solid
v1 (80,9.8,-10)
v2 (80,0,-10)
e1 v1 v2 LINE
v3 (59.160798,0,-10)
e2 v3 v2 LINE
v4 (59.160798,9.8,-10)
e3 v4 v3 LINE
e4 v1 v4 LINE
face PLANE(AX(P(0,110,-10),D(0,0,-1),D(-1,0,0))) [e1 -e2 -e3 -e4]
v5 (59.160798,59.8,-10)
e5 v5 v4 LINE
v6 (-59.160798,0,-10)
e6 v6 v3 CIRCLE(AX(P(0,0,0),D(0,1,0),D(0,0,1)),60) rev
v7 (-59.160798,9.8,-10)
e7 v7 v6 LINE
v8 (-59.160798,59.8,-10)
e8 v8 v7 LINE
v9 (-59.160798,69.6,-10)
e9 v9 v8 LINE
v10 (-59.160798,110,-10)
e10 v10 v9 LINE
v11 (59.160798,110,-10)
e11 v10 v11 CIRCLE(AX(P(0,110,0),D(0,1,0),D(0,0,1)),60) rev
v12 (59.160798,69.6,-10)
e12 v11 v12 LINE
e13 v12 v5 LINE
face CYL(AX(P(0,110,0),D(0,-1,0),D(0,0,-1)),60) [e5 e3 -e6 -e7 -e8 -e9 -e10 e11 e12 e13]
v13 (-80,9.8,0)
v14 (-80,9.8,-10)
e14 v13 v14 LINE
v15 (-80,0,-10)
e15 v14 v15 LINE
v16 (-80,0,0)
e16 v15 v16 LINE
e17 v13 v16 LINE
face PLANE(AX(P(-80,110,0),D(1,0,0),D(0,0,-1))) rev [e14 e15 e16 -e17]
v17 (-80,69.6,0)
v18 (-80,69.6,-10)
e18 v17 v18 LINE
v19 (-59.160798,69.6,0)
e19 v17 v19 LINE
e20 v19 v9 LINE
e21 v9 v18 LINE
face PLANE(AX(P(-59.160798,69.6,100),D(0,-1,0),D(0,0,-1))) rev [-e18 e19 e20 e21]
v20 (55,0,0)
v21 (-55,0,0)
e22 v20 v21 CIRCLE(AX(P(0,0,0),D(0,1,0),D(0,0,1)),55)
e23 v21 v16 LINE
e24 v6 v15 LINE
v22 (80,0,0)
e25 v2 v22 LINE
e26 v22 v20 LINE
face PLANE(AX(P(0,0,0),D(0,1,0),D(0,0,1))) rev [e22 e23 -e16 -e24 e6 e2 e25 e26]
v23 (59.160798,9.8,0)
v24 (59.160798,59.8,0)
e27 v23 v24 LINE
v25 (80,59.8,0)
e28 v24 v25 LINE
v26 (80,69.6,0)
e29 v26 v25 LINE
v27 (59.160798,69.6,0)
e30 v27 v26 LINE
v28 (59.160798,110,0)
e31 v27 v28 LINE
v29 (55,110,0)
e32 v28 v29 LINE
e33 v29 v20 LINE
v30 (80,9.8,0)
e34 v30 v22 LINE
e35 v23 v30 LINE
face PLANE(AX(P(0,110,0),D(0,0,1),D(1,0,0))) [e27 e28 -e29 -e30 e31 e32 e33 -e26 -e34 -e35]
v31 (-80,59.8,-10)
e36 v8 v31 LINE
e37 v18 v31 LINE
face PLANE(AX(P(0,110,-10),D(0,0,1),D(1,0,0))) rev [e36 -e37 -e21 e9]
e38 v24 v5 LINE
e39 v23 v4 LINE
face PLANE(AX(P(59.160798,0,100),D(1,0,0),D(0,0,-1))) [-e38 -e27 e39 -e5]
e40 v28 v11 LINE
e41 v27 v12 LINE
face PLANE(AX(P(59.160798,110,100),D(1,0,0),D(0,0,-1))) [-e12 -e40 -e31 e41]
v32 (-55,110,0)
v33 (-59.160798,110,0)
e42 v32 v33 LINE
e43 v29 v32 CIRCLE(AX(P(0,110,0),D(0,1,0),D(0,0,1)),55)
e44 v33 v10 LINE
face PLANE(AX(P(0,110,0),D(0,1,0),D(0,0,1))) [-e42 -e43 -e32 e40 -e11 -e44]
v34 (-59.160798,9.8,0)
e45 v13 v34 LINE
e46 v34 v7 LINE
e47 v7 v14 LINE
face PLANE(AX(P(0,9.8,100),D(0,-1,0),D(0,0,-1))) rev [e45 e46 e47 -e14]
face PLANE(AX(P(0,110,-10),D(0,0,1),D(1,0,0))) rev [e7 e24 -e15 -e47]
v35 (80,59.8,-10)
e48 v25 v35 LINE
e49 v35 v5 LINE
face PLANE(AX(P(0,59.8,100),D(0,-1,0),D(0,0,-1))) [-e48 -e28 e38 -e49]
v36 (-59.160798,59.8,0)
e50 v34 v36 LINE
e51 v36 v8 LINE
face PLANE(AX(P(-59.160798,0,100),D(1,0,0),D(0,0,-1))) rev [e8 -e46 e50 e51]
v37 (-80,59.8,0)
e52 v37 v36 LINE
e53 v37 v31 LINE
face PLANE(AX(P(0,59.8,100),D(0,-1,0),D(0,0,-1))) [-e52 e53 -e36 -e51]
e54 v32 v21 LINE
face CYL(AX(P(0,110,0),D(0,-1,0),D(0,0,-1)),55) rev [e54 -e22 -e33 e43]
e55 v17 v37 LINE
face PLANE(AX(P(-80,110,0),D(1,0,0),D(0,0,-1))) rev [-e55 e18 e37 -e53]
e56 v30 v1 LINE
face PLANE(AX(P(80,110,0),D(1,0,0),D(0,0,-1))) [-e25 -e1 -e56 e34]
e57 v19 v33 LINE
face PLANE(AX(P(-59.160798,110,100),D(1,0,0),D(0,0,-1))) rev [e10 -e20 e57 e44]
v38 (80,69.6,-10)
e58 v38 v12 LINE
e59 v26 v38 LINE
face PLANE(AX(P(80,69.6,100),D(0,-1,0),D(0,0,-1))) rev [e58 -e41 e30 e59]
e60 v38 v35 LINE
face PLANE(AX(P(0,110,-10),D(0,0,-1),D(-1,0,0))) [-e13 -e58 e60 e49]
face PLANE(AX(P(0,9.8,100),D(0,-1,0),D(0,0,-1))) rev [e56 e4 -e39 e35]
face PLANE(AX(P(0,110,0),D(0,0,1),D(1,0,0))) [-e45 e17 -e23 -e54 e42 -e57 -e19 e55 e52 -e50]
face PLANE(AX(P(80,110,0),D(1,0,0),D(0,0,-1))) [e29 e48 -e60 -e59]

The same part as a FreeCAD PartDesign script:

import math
import FreeCAD as App
import Part
import Sketcher

V = App.Vector
Q = App.Units.Quantity


def add_polygon(sketch, points):
    """Adds a closed chain of lines whose ends are joined by coincident constraints."""
    first, n = sketch.GeometryCount, len(points)
    for a, b in zip(points, points[1:] + points[:1]):
        sketch.addGeometry(Part.LineSegment(App.Vector(*a, 0), App.Vector(*b, 0)), False)
    for i in range(n):
        sketch.addConstraint(Sketcher.Constraint("Coincident", first + i, 2, first + (i + 1) % n, 1))

doc = App.newDocument("Part")
params = doc.addObject("Spreadsheet::Sheet", "Params")
for row, (alias, value) in enumerate([
    ("sketch1_radius", "55 mm"),
    ("sketch1_radius2", "60 mm"),
    ("sketch1_width", "25 mm"),
    ("sketch1_height", "10 mm"),
    ("pad1_length", "110 mm"),
    ("sketch2_height", "50 mm"),
    ("sketch2_height2", "40.4 mm"),
    ("pocket1_length", "110 mm"),
], start=1):
    params.set(f"A{row}", alias)
    params.set(f"B{row}", "=" + value)
    params.setAlias(f"B{row}", alias)

body = doc.addObject("PartDesign::Body", "Body")

# Sketch on XZ plane
sketch1 = doc.addObject("Sketcher::SketchObject", "Sketch")
body.addObject(sketch1)
sketch1.AttachmentSupport = (doc.XZ_Plane, [""])
sketch1.MapMode = "FlatFace"
sketch1.addGeometry([
    Part.ArcOfCircle(Part.Circle(V(0, 0, 0), V(0, 0, 1), 55), math.radians(180), math.radians(360)),  # 0
    Part.LineSegment(V(55, 0, 0), V(80, 0, 0)),  # 1
    Part.LineSegment(V(80, 0, 0), V(80, -10, 0)),  # 2
    Part.LineSegment(V(80, -10, 0), V(59, -10, 0)),  # 3
    Part.ArcOfCircle(Part.Circle(V(0, 0, 0), V(0, 0, 1), 60), math.radians(-170), math.radians(-10)),  # 4
    Part.LineSegment(V(-59, -10, 0), V(-80, -10, 0)),  # 5
    Part.LineSegment(V(-80, -10, 0), V(-80, 0, 0)),  # 6
    Part.LineSegment(V(-80, 0, 0), V(-55, 0, 0)),  # 7
], False)
sketch1.addConstraint([
    Sketcher.Constraint("Coincident", 0, 2, 1, 1),
    Sketcher.Constraint("Coincident", 1, 2, 2, 1),
    Sketcher.Constraint("Coincident", 2, 2, 3, 1),
    Sketcher.Constraint("Coincident", 3, 2, 4, 2),
    Sketcher.Constraint("Coincident", 4, 1, 5, 1),
    Sketcher.Constraint("Coincident", 5, 2, 6, 1),
    Sketcher.Constraint("Coincident", 6, 2, 7, 1),
    Sketcher.Constraint("Coincident", 7, 2, 0, 1),
    Sketcher.Constraint("Horizontal", 1),
    Sketcher.Constraint("Vertical", 2),
    Sketcher.Constraint("Horizontal", 3),
    Sketcher.Constraint("Horizontal", 5),
    Sketcher.Constraint("Vertical", 6),
    Sketcher.Constraint("Horizontal", 7),
    Sketcher.Constraint("Coincident", 0, 3, -1, 1),
    Sketcher.Constraint("Coincident", 4, 3, -1, 1),
    Sketcher.Constraint("Symmetric", 1, 2, 6, 2, -1, 1),
    Sketcher.Constraint("PointOnObject", 0, 2, -1),
    Sketcher.Constraint("Horizontal", 3, 2, 4, 1),
    Sketcher.Constraint("Radius", 0, Q("55 mm")),
    Sketcher.Constraint("Radius", 4, Q("60 mm")),
    Sketcher.Constraint("DistanceX", 1, 1, 1, 2, Q("25 mm")),
    Sketcher.Constraint("DistanceY", 2, 2, 2, 1, Q("10 mm")),
])
sketch1.setExpression("Constraints[19]", "Params.sketch1_radius")
sketch1.setExpression("Constraints[20]", "Params.sketch1_radius2")
sketch1.setExpression("Constraints[21]", "Params.sketch1_width")
sketch1.setExpression("Constraints[22]", "Params.sketch1_height")
pad1 = doc.addObject("PartDesign::Pad", "Pad")
body.addObject(pad1)
pad1.Profile = sketch1
pad1.setExpression("Length", "Params.pad1_length")
pad1.Reversed = True

# Sketch on XY plane
sketch2 = doc.addObject("Sketcher::SketchObject", "Sketch001")
body.addObject(sketch2)
sketch2.AttachmentSupport = (doc.XY_Plane, [""])
sketch2.MapMode = "FlatFace"
sketch2.AttachmentOffset = App.Placement(V(0, 0, -10), App.Rotation())
add_polygon(sketch2, [(80, 60), (80, 10), (59, 10), (59, 60)])  # lines 0-3
add_polygon(sketch2, [(-59, 60), (-59, 10), (-80, 10), (-80, 60)])  # lines 4-7
add_polygon(sketch2, [(80, 110), (80, 70), (59, 70), (59, 110)])  # lines 8-11
add_polygon(sketch2, [(-59, 110), (-59, 70), (-80, 70), (-80, 110)])  # lines 12-15
sketch2.addConstraint([
    Sketcher.Constraint("Vertical", 0),
    Sketcher.Constraint("Horizontal", 1),
    Sketcher.Constraint("Vertical", 2),
    Sketcher.Constraint("Horizontal", 3),
    Sketcher.Constraint("Vertical", 4),
    Sketcher.Constraint("Horizontal", 5),
    Sketcher.Constraint("Vertical", 6),
    Sketcher.Constraint("Horizontal", 7),
    Sketcher.Constraint("Vertical", 8),
    Sketcher.Constraint("Horizontal", 9),
    Sketcher.Constraint("Vertical", 10),
    Sketcher.Constraint("Horizontal", 11),
    Sketcher.Constraint("Vertical", 12),
    Sketcher.Constraint("Horizontal", 13),
    Sketcher.Constraint("Vertical", 14),
    Sketcher.Constraint("Horizontal", 15),
    Sketcher.Constraint("Symmetric", 1, 2, 4, 2, -2),
    Sketcher.Constraint("Symmetric", 3, 2, 6, 2, -2),
    Sketcher.Constraint("Symmetric", 9, 2, 12, 2, -2),
    Sketcher.Constraint("Symmetric", 11, 2, 14, 2, -2),
    Sketcher.Constraint("Vertical", 3, 2, 8, 2),
    Sketcher.Constraint("Vertical", 2, 2, 9, 2),
    Sketcher.Constraint("DistanceY", 0, 2, 0, 1, Q("50 mm")),
    Sketcher.Constraint("DistanceY", 8, 2, 8, 1, Q("40.4 mm")),
    Sketcher.Constraint("DistanceX", -1, 1, 0, 2, Q("80 mm")),
    Sketcher.Constraint("DistanceY", -1, 1, 10, 2, Q("110 mm")),
    Sketcher.Constraint("DistanceY", -1, 1, 0, 2, Q("9.8 mm")),
    Sketcher.Constraint("DistanceX", 1, 2, 1, 1, Q("20.839202 mm")),
])
sketch2.setExpression("Constraints[38]", "Params.sketch2_height")
sketch2.setExpression("Constraints[39]", "Params.sketch2_height2")
pocket1 = doc.addObject("PartDesign::Pocket", "Pocket")
body.addObject(pocket1)
pocket1.Profile = sketch2
pocket1.setExpression("Length", "Params.pocket1_length")
pocket1.Reversed = True

doc.recompute()
